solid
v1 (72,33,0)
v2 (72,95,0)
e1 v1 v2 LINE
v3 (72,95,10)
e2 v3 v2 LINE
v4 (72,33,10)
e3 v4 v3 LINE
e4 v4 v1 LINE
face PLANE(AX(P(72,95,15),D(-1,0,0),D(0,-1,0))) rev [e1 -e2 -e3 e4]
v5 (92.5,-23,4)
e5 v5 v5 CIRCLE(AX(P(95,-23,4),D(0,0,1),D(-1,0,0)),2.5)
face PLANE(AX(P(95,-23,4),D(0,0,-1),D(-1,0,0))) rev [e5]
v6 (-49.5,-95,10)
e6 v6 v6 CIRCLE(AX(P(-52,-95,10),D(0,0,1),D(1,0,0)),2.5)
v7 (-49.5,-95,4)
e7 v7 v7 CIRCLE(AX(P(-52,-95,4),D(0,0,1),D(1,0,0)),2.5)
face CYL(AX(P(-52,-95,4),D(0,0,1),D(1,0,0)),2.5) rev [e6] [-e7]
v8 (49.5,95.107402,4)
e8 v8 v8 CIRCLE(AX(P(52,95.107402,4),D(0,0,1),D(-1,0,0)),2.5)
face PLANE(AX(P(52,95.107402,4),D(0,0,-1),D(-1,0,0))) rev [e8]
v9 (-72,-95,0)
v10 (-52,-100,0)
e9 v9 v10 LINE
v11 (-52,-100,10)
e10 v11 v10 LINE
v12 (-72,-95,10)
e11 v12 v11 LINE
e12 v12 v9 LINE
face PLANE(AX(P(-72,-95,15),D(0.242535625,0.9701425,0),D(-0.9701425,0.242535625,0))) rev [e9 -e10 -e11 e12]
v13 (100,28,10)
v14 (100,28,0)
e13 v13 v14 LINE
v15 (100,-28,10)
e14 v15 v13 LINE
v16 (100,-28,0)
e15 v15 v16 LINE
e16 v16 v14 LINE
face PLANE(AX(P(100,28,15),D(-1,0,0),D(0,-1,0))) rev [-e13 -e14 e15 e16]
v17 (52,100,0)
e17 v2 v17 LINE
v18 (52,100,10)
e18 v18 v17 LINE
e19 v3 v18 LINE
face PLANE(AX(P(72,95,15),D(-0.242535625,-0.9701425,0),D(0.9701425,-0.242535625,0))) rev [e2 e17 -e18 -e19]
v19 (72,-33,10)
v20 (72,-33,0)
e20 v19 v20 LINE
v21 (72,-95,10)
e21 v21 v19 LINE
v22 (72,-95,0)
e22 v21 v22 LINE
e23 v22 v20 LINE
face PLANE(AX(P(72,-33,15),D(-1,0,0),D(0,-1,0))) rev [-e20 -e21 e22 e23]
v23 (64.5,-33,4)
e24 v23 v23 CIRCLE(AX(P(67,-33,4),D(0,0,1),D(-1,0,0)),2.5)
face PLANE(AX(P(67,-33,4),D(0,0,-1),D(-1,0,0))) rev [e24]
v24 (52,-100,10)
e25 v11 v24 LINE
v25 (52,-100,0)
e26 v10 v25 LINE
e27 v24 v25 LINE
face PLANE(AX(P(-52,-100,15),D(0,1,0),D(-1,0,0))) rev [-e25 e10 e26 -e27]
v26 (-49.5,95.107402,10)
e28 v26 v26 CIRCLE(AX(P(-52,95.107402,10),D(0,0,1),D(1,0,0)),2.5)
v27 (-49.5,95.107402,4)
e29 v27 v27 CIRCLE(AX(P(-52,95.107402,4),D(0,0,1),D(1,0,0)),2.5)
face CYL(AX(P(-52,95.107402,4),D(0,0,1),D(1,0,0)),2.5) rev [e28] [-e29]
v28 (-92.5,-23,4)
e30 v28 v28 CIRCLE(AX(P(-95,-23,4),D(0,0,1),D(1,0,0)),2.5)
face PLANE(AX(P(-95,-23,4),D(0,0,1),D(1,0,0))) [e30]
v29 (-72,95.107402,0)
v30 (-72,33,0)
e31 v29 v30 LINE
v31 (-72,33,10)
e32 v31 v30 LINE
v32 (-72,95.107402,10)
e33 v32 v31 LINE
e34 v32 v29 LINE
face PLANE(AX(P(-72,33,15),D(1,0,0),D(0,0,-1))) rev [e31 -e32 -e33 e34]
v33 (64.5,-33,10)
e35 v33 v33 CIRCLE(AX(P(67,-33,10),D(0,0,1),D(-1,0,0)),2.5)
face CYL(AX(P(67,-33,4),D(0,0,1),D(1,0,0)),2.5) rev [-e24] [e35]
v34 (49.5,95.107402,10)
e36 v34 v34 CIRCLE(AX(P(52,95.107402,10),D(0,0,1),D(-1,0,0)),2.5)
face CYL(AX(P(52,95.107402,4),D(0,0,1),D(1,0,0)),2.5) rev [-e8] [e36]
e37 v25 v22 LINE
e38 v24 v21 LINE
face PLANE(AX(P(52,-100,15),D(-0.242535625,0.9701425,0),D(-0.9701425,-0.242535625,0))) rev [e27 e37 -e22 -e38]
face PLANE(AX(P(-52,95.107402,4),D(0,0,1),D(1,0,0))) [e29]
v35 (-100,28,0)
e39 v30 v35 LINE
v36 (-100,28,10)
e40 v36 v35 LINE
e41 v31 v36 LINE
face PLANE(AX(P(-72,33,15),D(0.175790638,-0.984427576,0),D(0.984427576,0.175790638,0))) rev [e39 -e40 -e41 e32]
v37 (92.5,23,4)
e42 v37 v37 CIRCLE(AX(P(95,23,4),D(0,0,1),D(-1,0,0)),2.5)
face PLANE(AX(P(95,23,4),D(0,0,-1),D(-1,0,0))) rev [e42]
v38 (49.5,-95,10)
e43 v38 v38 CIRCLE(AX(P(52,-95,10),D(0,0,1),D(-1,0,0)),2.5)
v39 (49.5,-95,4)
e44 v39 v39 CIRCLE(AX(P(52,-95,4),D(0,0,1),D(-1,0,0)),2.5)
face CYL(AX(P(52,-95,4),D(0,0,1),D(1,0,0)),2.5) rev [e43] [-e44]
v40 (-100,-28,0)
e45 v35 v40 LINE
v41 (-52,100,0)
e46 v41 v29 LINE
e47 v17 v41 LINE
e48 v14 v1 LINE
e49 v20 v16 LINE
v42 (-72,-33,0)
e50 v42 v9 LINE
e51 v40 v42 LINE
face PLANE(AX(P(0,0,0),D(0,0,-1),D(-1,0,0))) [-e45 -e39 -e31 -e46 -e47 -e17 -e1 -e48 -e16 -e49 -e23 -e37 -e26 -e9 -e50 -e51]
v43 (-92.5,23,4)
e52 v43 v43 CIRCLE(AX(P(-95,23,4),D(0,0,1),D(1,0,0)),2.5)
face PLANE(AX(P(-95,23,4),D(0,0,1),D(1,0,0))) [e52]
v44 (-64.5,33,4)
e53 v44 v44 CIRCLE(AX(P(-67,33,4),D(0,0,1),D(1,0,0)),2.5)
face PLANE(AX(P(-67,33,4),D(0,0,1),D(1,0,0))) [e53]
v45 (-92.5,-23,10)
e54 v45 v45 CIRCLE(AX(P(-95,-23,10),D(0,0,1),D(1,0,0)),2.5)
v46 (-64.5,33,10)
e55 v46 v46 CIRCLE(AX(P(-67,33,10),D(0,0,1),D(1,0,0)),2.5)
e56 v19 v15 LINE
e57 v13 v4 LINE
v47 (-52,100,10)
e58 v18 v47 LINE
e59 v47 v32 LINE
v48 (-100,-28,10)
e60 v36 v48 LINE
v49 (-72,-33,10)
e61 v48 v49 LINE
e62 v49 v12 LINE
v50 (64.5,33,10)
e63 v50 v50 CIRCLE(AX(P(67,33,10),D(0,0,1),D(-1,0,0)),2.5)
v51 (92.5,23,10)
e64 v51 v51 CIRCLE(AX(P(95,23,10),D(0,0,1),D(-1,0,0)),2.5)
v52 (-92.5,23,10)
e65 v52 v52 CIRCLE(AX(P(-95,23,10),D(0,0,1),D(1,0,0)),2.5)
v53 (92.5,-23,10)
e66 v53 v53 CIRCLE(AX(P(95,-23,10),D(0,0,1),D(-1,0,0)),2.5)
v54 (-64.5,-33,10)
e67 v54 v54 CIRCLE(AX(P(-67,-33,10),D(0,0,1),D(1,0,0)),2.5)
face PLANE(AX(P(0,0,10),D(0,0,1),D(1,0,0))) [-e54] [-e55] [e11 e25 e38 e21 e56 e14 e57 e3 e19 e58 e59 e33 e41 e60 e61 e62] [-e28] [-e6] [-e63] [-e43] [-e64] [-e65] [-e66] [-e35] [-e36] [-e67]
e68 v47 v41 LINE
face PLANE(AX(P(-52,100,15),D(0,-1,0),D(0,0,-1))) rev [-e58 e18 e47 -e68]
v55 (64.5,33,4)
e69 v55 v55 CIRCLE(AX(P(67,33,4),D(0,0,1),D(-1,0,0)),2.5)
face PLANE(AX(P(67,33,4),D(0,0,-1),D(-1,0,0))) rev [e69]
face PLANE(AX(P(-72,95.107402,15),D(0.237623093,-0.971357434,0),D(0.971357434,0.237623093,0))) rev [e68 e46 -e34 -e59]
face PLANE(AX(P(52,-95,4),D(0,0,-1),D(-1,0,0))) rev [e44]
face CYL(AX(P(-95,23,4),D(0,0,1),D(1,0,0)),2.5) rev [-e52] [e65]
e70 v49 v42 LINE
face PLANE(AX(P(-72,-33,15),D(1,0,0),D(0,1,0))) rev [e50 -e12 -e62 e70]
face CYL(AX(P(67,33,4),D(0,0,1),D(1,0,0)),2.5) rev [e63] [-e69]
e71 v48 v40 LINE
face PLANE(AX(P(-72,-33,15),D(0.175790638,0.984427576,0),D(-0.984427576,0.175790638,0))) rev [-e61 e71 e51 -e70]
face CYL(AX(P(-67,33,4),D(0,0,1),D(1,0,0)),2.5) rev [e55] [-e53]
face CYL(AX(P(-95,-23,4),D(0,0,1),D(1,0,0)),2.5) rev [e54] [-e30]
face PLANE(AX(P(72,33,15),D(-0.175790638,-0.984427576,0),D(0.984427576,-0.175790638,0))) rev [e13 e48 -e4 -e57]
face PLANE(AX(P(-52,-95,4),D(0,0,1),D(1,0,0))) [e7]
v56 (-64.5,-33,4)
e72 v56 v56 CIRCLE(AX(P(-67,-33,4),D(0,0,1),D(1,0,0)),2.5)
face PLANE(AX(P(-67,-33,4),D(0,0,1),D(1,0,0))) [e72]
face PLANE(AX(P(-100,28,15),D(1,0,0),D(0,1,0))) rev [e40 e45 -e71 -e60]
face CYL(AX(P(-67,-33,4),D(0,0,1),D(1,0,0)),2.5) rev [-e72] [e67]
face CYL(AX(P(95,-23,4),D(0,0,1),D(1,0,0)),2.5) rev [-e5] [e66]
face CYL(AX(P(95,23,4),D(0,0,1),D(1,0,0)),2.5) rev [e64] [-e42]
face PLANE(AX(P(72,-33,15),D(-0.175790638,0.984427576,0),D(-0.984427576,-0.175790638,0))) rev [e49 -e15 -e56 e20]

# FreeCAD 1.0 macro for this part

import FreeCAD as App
import Part
import Sketcher
from FreeCAD import Vector

doc = App.newDocument("Part")
body = doc.addObject("PartDesign::Body", "Body")

# Sketch on XY plane
sketch1 = body.newObject("Sketcher::SketchObject", "Sketch")
sketch1.AttachmentSupport = (doc.getObject("XY_Plane"), [""])
sketch1.MapMode = "FlatFace"
sketch1.addGeometry([
    Part.LineSegment(Vector(52, 100, 0), Vector(-52, 100, 0)),  # 0
    Part.LineSegment(Vector(-52, 100, 0), Vector(-72, 95, 0)),  # 1
    Part.LineSegment(Vector(-72, 95, 0), Vector(-72, 33, 0)),  # 2
    Part.LineSegment(Vector(-72, 33, 0), Vector(-100, 28, 0)),  # 3
    Part.LineSegment(Vector(-100, 28, 0), Vector(-100, -28, 0)),  # 4
    Part.LineSegment(Vector(-100, -28, 0), Vector(-72, -33, 0)),  # 5
    Part.LineSegment(Vector(-72, -33, 0), Vector(-72, -95, 0)),  # 6
    Part.LineSegment(Vector(-72, -95, 0), Vector(-52, -100, 0)),  # 7
    Part.LineSegment(Vector(-52, -100, 0), Vector(52, -100, 0)),  # 8
    Part.LineSegment(Vector(52, -100, 0), Vector(72, -95, 0)),  # 9
    Part.LineSegment(Vector(72, -95, 0), Vector(72, -33, 0)),  # 10
    Part.LineSegment(Vector(72, -33, 0), Vector(100, -28, 0)),  # 11
    Part.LineSegment(Vector(100, -28, 0), Vector(100, 28, 0)),  # 12
    Part.LineSegment(Vector(100, 28, 0), Vector(72, 33, 0)),  # 13
    Part.LineSegment(Vector(72, 33, 0), Vector(72, 95, 0)),  # 14
    Part.LineSegment(Vector(72, 95, 0), Vector(52, 100, 0)),  # 15
], False)
sketch1.addConstraint([
    Sketcher.Constraint("Coincident", 0, 2, 1, 1),
    Sketcher.Constraint("Coincident", 1, 2, 2, 1),
    Sketcher.Constraint("Coincident", 2, 2, 3, 1),
    Sketcher.Constraint("Coincident", 3, 2, 4, 1),
    Sketcher.Constraint("Coincident", 4, 2, 5, 1),
    Sketcher.Constraint("Coincident", 5, 2, 6, 1),
    Sketcher.Constraint("Coincident", 6, 2, 7, 1),
    Sketcher.Constraint("Coincident", 7, 2, 8, 1),
    Sketcher.Constraint("Coincident", 8, 2, 9, 1),
    Sketcher.Constraint("Coincident", 9, 2, 10, 1),
    Sketcher.Constraint("Coincident", 10, 2, 11, 1),
    Sketcher.Constraint("Coincident", 11, 2, 12, 1),
    Sketcher.Constraint("Coincident", 12, 2, 13, 1),
    Sketcher.Constraint("Coincident", 13, 2, 14, 1),
    Sketcher.Constraint("Coincident", 14, 2, 15, 1),
    Sketcher.Constraint("Coincident", 15, 2, 0, 1),
    Sketcher.Constraint("Horizontal", 0),
    Sketcher.Constraint("Vertical", 2),
    Sketcher.Constraint("Vertical", 4),
    Sketcher.Constraint("Vertical", 6),
    Sketcher.Constraint("Horizontal", 8),
    Sketcher.Constraint("Vertical", 10),
    Sketcher.Constraint("Vertical", 12),
    Sketcher.Constraint("Vertical", 14),
    Sketcher.Constraint("Symmetric", 0, 2, 8, 2, -1, 1),
    Sketcher.Constraint("Symmetric", 2, 2, 10, 2, -1, 1),
    Sketcher.Constraint("Symmetric", 3, 2, 11, 2, -1, 1),
    Sketcher.Constraint("Symmetric", 5, 2, 13, 2, -1, 1),
    Sketcher.Constraint("Symmetric", 6, 2, 9, 2, -2),
    Sketcher.Constraint("Parallel", 5, 13),
    Sketcher.Constraint("Parallel", 7, 15),
    Sketcher.Constraint("Horizontal", 5, 2, 10, 2),
    Sketcher.Constraint("Horizontal", 4, 2, 11, 2),
    Sketcher.Constraint("Vertical", 0, 2, 7, 2),
    Sketcher.Constraint("Vertical", 8, 2, 15, 2),
    Sketcher.Constraint("DistanceX", 0, 2, 0, 1, 104.0),
    Sketcher.Constraint("DistanceY", 4, 2, 4, 1, 56.0),
    Sketcher.Constraint("DistanceY", 6, 2, 6, 1, 62.0),
    Sketcher.Constraint("DistanceY", -1, 1, 0, 2, 100.0),
    Sketcher.Constraint("DistanceX", 1, 2, -1, 1, 72.0),
    Sketcher.Constraint("DistanceY", -1, 1, 2, 2, 33.0),
    Sketcher.Constraint("DistanceX", 3, 2, -1, 1, 100.0),
    Sketcher.Constraint("DistanceY", 2, 2, 2, 1, 62.107402),
])
pad1 = body.newObject("PartDesign::Pad", "Pad")
pad1.Profile = sketch1
pad1.Length = 15

# Sketch on XY plane
sketch2 = body.newObject("Sketcher::SketchObject", "Sketch001")
sketch2.AttachmentSupport = (doc.getObject("XY_Plane"), [""])
sketch2.MapMode = "FlatFace"
sketch2.AttachmentOffset = App.Placement(Vector(0, 0, 15), App.Rotation())
sketch2.addGeometry([
    Part.LineSegment(Vector(-71, 90.4, 0), Vector(-71, 70.4, 0)),  # 0
    Part.LineSegment(Vector(-71, 70.4, 0), Vector(-68, 70.4, 0)),  # 1
    Part.LineSegment(Vector(-68, 70.4, 0), Vector(-68, 90.4, 0)),  # 2
    Part.LineSegment(Vector(-68, 90.4, 0), Vector(-71, 90.4, 0)),  # 3
    Part.LineSegment(Vector(-71, 53, 0), Vector(-71, 33, 0)),  # 4
    Part.LineSegment(Vector(-71, 33, 0), Vector(-68, 33, 0)),  # 5
    Part.LineSegment(Vector(-68, 33, 0), Vector(-68, 53, 0)),  # 6
    Part.LineSegment(Vector(-68, 53, 0), Vector(-71, 53, 0)),  # 7
], False)
sketch2.addConstraint([
    Sketcher.Constraint("Coincident", 0, 2, 1, 1),
    Sketcher.Constraint("Coincident", 1, 2, 2, 1),
    Sketcher.Constraint("Coincident", 2, 2, 3, 1),
    Sketcher.Constraint("Coincident", 3, 2, 0, 1),
    Sketcher.Constraint("Coincident", 4, 2, 5, 1),
    Sketcher.Constraint("Coincident", 5, 2, 6, 1),
    Sketcher.Constraint("Coincident", 6, 2, 7, 1),
    Sketcher.Constraint("Coincident", 7, 2, 4, 1),
    Sketcher.Constraint("Vertical", 0),
    Sketcher.Constraint("Horizontal", 1),
    Sketcher.Constraint("Vertical", 2),
    Sketcher.Constraint("Horizontal", 3),
    Sketcher.Constraint("Vertical", 4),
    Sketcher.Constraint("Horizontal", 5),
    Sketcher.Constraint("Vertical", 6),
    Sketcher.Constraint("Horizontal", 7),
    Sketcher.Constraint("Vertical", 3, 2, 4, 2),
    Sketcher.Constraint("Vertical", 2, 2, 5, 2),
    Sketcher.Constraint("Equal", 2, 4),
    Sketcher.Constraint("DistanceX", 1, 1, 1, 2, 3.0),
    Sketcher.Constraint("DistanceY", 0, 2, 0, 1, 20.0),
    Sketcher.Constraint("DistanceX", 0, 2, -1, 1, 71.0),
    Sketcher.Constraint("DistanceY", -1, 1, 4, 2, 33.0),
    Sketcher.Constraint("DistanceY", -1, 1, 0, 2, 70.352031),
])
pocket1 = body.newObject("PartDesign::Pocket", "Pocket")
pocket1.Profile = sketch2
pocket1.Length = 10

# Sketch on XY plane
sketch3 = body.newObject("Sketcher::SketchObject", "Sketch002")
sketch3.AttachmentSupport = (doc.getObject("XY_Plane"), [""])
sketch3.MapMode = "FlatFace"
sketch3.AttachmentOffset = App.Placement(Vector(0, 0, 15), App.Rotation())
sketch3.addGeometry([
    Part.LineSegment(Vector(-68, 90.4, 0), Vector(-71, 90.4, 0)),  # 0
    Part.LineSegment(Vector(-71, 90.4, 0), Vector(-71, 70.4, 0)),  # 1
    Part.LineSegment(Vector(-71, 70.4, 0), Vector(-68, 70.4, 0)),  # 2
    Part.LineSegment(Vector(-68, 70.4, 0), Vector(-68, 90.4, 0)),  # 3
    Part.LineSegment(Vector(-71, 53, 0), Vector(-71, 33, 0)),  # 4
    Part.LineSegment(Vector(-71, 33, 0), Vector(-68, 33, 0)),  # 5
    Part.LineSegment(Vector(-68, 33, 0), Vector(-68, 53, 0)),  # 6
    Part.LineSegment(Vector(-68, 53, 0), Vector(-71, 53, 0)),  # 7
], False)
sketch3.addConstraint([
    Sketcher.Constraint("Coincident", 0, 2, 1, 1),
    Sketcher.Constraint("Coincident", 1, 2, 2, 1),
    Sketcher.Constraint("Coincident", 2, 2, 3, 1),
    Sketcher.Constraint("Coincident", 3, 2, 0, 1),
    Sketcher.Constraint("Coincident", 4, 2, 5, 1),
    Sketcher.Constraint("Coincident", 5, 2, 6, 1),
    Sketcher.Constraint("Coincident", 6, 2, 7, 1),
    Sketcher.Constraint("Coincident", 7, 2, 4, 1),
    Sketcher.Constraint("Horizontal", 0),
    Sketcher.Constraint("Vertical", 1),
    Sketcher.Constraint("Horizontal", 2),
    Sketcher.Constraint("Vertical", 3),
    Sketcher.Constraint("Vertical", 4),
    Sketcher.Constraint("Horizontal", 5),
    Sketcher.Constraint("Vertical", 6),
    Sketcher.Constraint("Horizontal", 7),
    Sketcher.Constraint("Vertical", 1, 2, 4, 2),
    Sketcher.Constraint("Vertical", 3, 2, 5, 2),
    Sketcher.Constraint("Equal", 3, 4),
    Sketcher.Constraint("DistanceX", 0, 2, 0, 1, 3.0),
    Sketcher.Constraint("DistanceY", 1, 2, 1, 1, 20.0),
    Sketcher.Constraint("DistanceX", 0, 2, -1, 1, 71.0),
    Sketcher.Constraint("DistanceY", -1, 1, 4, 2, 33.0),
    Sketcher.Constraint("DistanceY", -1, 1, 0, 2, 90.352031),
])
pad2 = body.newObject("PartDesign::Pad", "Pad001")
pad2.Profile = sketch3
pad2.Length = 10
pad2.Reversed = True

# Sketch on XY plane
sketch4 = body.newObject("Sketcher::SketchObject", "Sketch003")
sketch4.AttachmentSupport = (doc.getObject("XY_Plane"), [""])
sketch4.MapMode = "FlatFace"
sketch4.AttachmentOffset = App.Placement(Vector(0, 0, 15), App.Rotation())
sketch4.addGeometry([
    Part.LineSegment(Vector(-72, 95, 0), Vector(-72, 33, 0)),  # 0
    Part.LineSegment(Vector(-72, 33, 0), Vector(-100, 28, 0)),  # 1
    Part.LineSegment(Vector(-100, 28, 0), Vector(-100, -28, 0)),  # 2
    Part.LineSegment(Vector(-100, -28, 0), Vector(-72, -33, 0)),  # 3
    Part.LineSegment(Vector(-72, -33, 0), Vector(-72, -95, 0)),  # 4
    Part.LineSegment(Vector(-72, -95, 0), Vector(-52, -100, 0)),  # 5
    Part.LineSegment(Vector(-52, -100, 0), Vector(52, -100, 0)),  # 6
    Part.LineSegment(Vector(52, -100, 0), Vector(72, -95, 0)),  # 7
    Part.LineSegment(Vector(72, -95, 0), Vector(72, -33, 0)),  # 8
    Part.LineSegment(Vector(72, -33, 0), Vector(100, -28, 0)),  # 9
    Part.LineSegment(Vector(100, -28, 0), Vector(100, 28, 0)),  # 10
    Part.LineSegment(Vector(100, 28, 0), Vector(72, 33, 0)),  # 11
    Part.LineSegment(Vector(72, 33, 0), Vector(72, 95, 0)),  # 12
    Part.LineSegment(Vector(72, 95, 0), Vector(52, 100, 0)),  # 13
    Part.LineSegment(Vector(52, 100, 0), Vector(-52, 100, 0)),  # 14
    Part.LineSegment(Vector(-52, 100, 0), Vector(-72, 95, 0)),  # 15
], False)
sketch4.addConstraint([
    Sketcher.Constraint("Coincident", 0, 2, 1, 1),
    Sketcher.Constraint("Coincident", 1, 2, 2, 1),
    Sketcher.Constraint("Coincident", 2, 2, 3, 1),
    Sketcher.Constraint("Coincident", 3, 2, 4, 1),
    Sketcher.Constraint("Coincident", 4, 2, 5, 1),
    Sketcher.Constraint("Coincident", 5, 2, 6, 1),
    Sketcher.Constraint("Coincident", 6, 2, 7, 1),
    Sketcher.Constraint("Coincident", 7, 2, 8, 1),
    Sketcher.Constraint("Coincident", 8, 2, 9, 1),
    Sketcher.Constraint("Coincident", 9, 2, 10, 1),
    Sketcher.Constraint("Coincident", 10, 2, 11, 1),
    Sketcher.Constraint("Coincident", 11, 2, 12, 1),
    Sketcher.Constraint("Coincident", 12, 2, 13, 1),
    Sketcher.Constraint("Coincident", 13, 2, 14, 1),
    Sketcher.Constraint("Coincident", 14, 2, 15, 1),
    Sketcher.Constraint("Coincident", 15, 2, 0, 1),
    Sketcher.Constraint("Vertical", 0),
    Sketcher.Constraint("Vertical", 2),
    Sketcher.Constraint("Vertical", 4),
    Sketcher.Constraint("Horizontal", 6),
    Sketcher.Constraint("Vertical", 8),
    Sketcher.Constraint("Vertical", 10),
    Sketcher.Constraint("Vertical", 12),
    Sketcher.Constraint("Horizontal", 14),
    Sketcher.Constraint("Symmetric", 0, 2, 8, 2, -1, 1),
    Sketcher.Constraint("Symmetric", 1, 2, 9, 2, -1, 1),
    Sketcher.Constraint("Symmetric", 3, 2, 11, 2, -1, 1),
    Sketcher.Constraint("Symmetric", 5, 2, 13, 2, -1, 1),
    Sketcher.Constraint("Symmetric", 4, 2, 7, 2, -2),
    Sketcher.Constraint("Parallel", 3, 11),
    Sketcher.Constraint("Parallel", 5, 13),
    Sketcher.Constraint("Horizontal", 3, 2, 8, 2),
    Sketcher.Constraint("Horizontal", 2, 2, 9, 2),
    Sketcher.Constraint("Vertical", 6, 2, 13, 2),
    Sketcher.Constraint("Vertical", 5, 2, 14, 2),
    Sketcher.Constraint("DistanceX", 6, 1, 6, 2, 104.0),
    Sketcher.Constraint("DistanceY", 2, 2, 2, 1, 56.0),
    Sketcher.Constraint("DistanceY", 4, 2, 4, 1, 62.0),
    Sketcher.Constraint("DistanceX", 0, 2, -1, 1, 72.0),
    Sketcher.Constraint("DistanceY", -1, 1, 0, 2, 33.0),
    Sketcher.Constraint("DistanceX", 1, 2, -1, 1, 100.0),
    Sketcher.Constraint("DistanceY", 5, 2, -1, 1, 100.0),
    Sketcher.Constraint("DistanceY", 0, 2, 0, 1, 62.107402),
])
pocket2 = body.newObject("PartDesign::Pocket", "Pocket001")
pocket2.Profile = sketch4
pocket2.Length = 5

# Sketch on XY plane
sketch5 = body.newObject("Sketcher::SketchObject", "Sketch004")
sketch5.AttachmentSupport = (doc.getObject("XY_Plane"), [""])
sketch5.MapMode = "FlatFace"
sketch5.AttachmentOffset = App.Placement(Vector(0, 0, 10), App.Rotation())
sketch5.addGeometry([
    Part.Circle(Vector(-52, 95.1, 0), Vector(0, 0, 1), 2.5),  # 0
    Part.Circle(Vector(-52, -95, 0), Vector(0, 0, 1), 2.5),  # 1
    Part.Circle(Vector(-67, -33, 0), Vector(0, 0, 1), 2.5),  # 2
    Part.Circle(Vector(-67, 33, 0), Vector(0, 0, 1), 2.5),  # 3
    Part.Circle(Vector(-95, 23, 0), Vector(0, 0, 1), 2.5),  # 4
    Part.Circle(Vector(-95, -23, 0), Vector(0, 0, 1), 2.5),  # 5
    Part.Circle(Vector(95, -23, 0), Vector(0, 0, 1), 2.5),  # 6
    Part.Circle(Vector(95, 23, 0), Vector(0, 0, 1), 2.5),  # 7
    Part.Circle(Vector(67, 33, 0), Vector(0, 0, 1), 2.5),  # 8
    Part.Circle(Vector(67, -33, 0), Vector(0, 0, 1), 2.5),  # 9
    Part.Circle(Vector(52, -95, 0), Vector(0, 0, 1), 2.5),  # 10
    Part.Circle(Vector(52, 95.1, 0), Vector(0, 0, 1), 2.5),  # 11
], False)
sketch5.addConstraint([
    Sketcher.Constraint("Equal", 0, 1),
    Sketcher.Constraint("Equal", 1, 2),
    Sketcher.Constraint("Equal", 2, 3),
    Sketcher.Constraint("Equal", 3, 4),
    Sketcher.Constraint("Equal", 4, 5),
    Sketcher.Constraint("Equal", 5, 6),
    Sketcher.Constraint("Equal", 6, 7),
    Sketcher.Constraint("Equal", 7, 8),
    Sketcher.Constraint("Equal", 8, 9),
    Sketcher.Constraint("Equal", 9, 10),
    Sketcher.Constraint("Equal", 10, 11),
    Sketcher.Constraint("Symmetric", 4, 3, 6, 3, -1, 1),
    Sketcher.Constraint("Symmetric", 5, 3, 7, 3, -1, 1),
    Sketcher.Constraint("Symmetric", 2, 3, 8, 3, -1, 1),
    Sketcher.Constraint("Symmetric", 3, 3, 9, 3, -1, 1),
    Sketcher.Constraint("Symmetric", 5, 3, 6, 3, -2),
    Sketcher.Constraint("Symmetric", 3, 3, 8, 3, -2),
    Sketcher.Constraint("Symmetric", 1, 3, 10, 3, -2),
    Sketcher.Constraint("Symmetric", 0, 3, 11, 3, -2),
    Sketcher.Constraint("Vertical", 0, 3, 1, 3),
    Sketcher.Constraint("Diameter", 0, 5.0),
    Sketcher.Constraint("DistanceX", 0, 3, -1, 1, 52.0),
    Sketcher.Constraint("DistanceY", 1, 3, -1, 1, 95.0),
    Sketcher.Constraint("DistanceX", 2, 3, -1, 1, 67.0),
    Sketcher.Constraint("DistanceY", 2, 3, -1, 1, 33.0),
    Sketcher.Constraint("DistanceX", 4, 3, -1, 1, 95.0),
    Sketcher.Constraint("DistanceY", -1, 1, 4, 3, 23.0),
    Sketcher.Constraint("DistanceY", -1, 1, 0, 3, 95.107402),
])
pocket3 = body.newObject("PartDesign::Pocket", "Pocket002")
pocket3.Profile = sketch5
pocket3.Length = 6

doc.recompute()
